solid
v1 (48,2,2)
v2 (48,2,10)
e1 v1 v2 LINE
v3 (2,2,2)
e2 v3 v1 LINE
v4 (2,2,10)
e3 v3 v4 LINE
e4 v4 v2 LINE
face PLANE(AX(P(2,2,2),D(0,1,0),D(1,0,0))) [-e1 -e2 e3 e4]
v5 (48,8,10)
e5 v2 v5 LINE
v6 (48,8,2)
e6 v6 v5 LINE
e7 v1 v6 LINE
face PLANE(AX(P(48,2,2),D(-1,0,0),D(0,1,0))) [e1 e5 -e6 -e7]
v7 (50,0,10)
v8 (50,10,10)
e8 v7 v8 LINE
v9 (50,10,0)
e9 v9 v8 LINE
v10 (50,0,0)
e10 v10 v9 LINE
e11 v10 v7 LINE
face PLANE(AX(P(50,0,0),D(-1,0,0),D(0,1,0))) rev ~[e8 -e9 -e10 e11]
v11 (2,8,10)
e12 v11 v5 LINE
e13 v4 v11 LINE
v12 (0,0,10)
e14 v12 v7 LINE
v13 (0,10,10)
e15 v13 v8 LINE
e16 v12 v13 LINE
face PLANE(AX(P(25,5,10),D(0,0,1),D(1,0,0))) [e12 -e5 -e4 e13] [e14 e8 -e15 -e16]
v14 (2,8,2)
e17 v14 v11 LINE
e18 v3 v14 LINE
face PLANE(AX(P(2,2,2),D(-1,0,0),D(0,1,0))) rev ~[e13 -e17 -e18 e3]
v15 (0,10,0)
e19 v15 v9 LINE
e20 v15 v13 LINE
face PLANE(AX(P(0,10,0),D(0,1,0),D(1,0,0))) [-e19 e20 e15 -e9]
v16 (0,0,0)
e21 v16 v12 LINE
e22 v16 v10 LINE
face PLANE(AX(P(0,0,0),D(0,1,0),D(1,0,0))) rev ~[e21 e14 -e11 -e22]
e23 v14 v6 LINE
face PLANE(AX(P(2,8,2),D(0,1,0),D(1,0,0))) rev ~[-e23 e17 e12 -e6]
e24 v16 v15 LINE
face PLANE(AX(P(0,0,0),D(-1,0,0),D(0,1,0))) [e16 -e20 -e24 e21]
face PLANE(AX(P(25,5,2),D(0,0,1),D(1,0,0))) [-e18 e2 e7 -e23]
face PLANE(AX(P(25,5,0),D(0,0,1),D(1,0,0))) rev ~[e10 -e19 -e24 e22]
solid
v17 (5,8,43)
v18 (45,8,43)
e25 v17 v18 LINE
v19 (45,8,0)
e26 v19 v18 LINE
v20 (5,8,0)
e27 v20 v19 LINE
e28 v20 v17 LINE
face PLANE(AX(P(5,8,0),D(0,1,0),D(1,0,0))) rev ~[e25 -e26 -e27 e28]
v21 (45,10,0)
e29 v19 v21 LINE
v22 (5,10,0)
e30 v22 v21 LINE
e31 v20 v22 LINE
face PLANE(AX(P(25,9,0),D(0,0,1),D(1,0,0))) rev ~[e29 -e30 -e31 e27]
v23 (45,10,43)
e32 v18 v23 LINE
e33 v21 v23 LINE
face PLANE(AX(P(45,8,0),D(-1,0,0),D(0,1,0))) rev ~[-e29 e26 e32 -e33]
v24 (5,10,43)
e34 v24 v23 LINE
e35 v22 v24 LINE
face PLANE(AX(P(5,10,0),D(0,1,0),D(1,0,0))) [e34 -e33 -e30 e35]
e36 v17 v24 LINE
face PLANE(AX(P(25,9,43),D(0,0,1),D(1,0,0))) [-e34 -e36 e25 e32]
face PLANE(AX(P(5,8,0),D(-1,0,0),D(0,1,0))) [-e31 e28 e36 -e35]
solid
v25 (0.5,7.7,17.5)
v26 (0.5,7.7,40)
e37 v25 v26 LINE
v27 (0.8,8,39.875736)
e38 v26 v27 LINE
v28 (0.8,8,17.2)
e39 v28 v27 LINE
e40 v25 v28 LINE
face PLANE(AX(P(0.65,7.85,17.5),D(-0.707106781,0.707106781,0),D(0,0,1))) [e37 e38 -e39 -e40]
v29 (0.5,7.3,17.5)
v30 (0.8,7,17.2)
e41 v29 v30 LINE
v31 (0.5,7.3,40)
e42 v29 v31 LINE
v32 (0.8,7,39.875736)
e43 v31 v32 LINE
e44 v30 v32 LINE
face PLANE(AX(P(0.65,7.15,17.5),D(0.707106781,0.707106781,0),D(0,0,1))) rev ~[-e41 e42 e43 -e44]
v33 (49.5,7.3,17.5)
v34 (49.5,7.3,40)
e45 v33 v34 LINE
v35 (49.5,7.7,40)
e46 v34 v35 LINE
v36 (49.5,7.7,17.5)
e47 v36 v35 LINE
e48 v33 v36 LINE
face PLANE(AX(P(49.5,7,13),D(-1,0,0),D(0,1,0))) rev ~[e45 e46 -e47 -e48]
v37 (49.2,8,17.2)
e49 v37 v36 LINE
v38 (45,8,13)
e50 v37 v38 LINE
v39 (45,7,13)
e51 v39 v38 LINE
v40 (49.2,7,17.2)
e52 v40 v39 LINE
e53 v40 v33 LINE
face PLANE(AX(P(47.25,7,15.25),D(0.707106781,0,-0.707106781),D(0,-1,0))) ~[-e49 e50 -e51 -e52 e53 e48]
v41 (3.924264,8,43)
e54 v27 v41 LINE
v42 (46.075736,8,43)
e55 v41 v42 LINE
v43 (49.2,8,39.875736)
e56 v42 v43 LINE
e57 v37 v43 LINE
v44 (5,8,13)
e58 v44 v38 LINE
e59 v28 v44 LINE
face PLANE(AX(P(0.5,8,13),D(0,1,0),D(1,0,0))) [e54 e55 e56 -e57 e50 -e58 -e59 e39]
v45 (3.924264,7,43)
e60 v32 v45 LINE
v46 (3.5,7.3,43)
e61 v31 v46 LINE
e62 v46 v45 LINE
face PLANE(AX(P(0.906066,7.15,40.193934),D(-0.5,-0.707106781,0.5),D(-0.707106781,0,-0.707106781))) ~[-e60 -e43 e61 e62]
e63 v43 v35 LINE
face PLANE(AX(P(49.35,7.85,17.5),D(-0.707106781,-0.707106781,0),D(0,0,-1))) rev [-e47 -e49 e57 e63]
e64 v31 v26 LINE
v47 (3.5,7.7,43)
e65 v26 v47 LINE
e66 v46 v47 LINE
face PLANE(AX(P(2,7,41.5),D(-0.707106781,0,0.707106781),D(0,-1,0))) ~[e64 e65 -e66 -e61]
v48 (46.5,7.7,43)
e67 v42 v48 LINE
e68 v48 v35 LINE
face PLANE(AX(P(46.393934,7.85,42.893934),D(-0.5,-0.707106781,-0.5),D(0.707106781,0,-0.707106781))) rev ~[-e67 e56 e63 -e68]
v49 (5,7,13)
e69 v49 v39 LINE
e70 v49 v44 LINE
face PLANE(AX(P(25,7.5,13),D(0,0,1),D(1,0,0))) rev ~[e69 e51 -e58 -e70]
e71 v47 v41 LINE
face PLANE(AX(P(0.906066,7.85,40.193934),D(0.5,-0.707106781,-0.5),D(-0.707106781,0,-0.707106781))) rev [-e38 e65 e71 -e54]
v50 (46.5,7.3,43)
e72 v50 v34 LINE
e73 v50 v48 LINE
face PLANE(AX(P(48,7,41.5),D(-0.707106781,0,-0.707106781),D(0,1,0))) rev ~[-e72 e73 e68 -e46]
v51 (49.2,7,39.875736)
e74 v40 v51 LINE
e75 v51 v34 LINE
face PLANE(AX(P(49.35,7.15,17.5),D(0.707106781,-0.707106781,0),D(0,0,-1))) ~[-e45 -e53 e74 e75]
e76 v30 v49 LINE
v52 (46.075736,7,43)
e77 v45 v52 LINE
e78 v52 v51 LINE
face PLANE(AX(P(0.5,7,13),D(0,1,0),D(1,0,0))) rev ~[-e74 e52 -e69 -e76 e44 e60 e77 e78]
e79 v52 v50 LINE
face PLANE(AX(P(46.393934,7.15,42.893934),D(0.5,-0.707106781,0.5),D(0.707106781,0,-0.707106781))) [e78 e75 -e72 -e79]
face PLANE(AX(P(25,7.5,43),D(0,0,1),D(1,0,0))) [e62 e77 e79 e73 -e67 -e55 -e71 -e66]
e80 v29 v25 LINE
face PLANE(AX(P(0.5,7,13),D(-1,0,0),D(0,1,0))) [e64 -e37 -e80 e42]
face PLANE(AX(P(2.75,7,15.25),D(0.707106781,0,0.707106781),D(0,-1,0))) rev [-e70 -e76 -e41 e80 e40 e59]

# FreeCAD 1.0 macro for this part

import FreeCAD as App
import Part
import Sketcher
from FreeCAD import Vector
Q = App.Units.Quantity


def edges_at(feature, points):
    """Names of the edges that pass closest to the given points."""
    edges = feature.Shape.Edges
    near = lambda p: min(range(len(edges)), key=lambda i: edges[i].distToShape(Part.Vertex(*p))[0])
    return sorted({f"Edge{near(p) + 1}" for p in points})

doc = App.newDocument("Part")
body = doc.addObject("PartDesign::Body", "Body")

# Sketch on XY plane
sketch1 = body.newObject("Sketcher::SketchObject", "Sketch")
sketch1.AttachmentSupport = (doc.getObject("XY_Plane"), [""])
sketch1.MapMode = "FlatFace"
sketch1.addGeometry([
    Part.LineSegment(Vector(5, 10, 0), Vector(5, 8, 0)),
    Part.LineSegment(Vector(5, 8, 0), Vector(45, 8, 0)),
    Part.LineSegment(Vector(45, 8, 0), Vector(45, 10, 0)),
    Part.LineSegment(Vector(45, 10, 0), Vector(5, 10, 0)),
], False)
sketch1.addConstraint([
    Sketcher.Constraint("Coincident", 0, 2, 1, 1),
    Sketcher.Constraint("Coincident", 1, 2, 2, 1),
    Sketcher.Constraint("Coincident", 2, 2, 3, 1),
    Sketcher.Constraint("Coincident", 3, 2, 0, 1),
    Sketcher.Constraint("Vertical", 0),
    Sketcher.Constraint("Horizontal", 1),
    Sketcher.Constraint("Vertical", 2),
    Sketcher.Constraint("Horizontal", 3),
    Sketcher.Constraint("DistanceX", 1, 1, 1, 2, Q("40 mm")),
    Sketcher.Constraint("DistanceY", 0, 2, 0, 1, Q("2 mm")),
    Sketcher.Constraint("DistanceX", -1, 1, 0, 2, Q("5 mm")),
    Sketcher.Constraint("DistanceY", -1, 1, 0, 2, Q("8 mm")),
])
pad1 = body.newObject("PartDesign::Pad", "Pad")
pad1.Profile = sketch1
pad1.Length = 43
body2 = doc.addObject("PartDesign::Body", "Body001")

# Sketch on XY plane
sketch2 = body2.newObject("Sketcher::SketchObject", "Sketch001")
sketch2.AttachmentSupport = (doc.getObject("XY_Plane001"), [""])
sketch2.MapMode = "FlatFace"
sketch2.AttachmentOffset = App.Placement(Vector(0, 0, 2), App.Rotation())
sketch2.addGeometry([
    Part.LineSegment(Vector(2, 8, 0), Vector(2, 2, 0)),
    Part.LineSegment(Vector(2, 2, 0), Vector(48, 2, 0)),
    Part.LineSegment(Vector(48, 2, 0), Vector(48, 8, 0)),
    Part.LineSegment(Vector(48, 8, 0), Vector(2, 8, 0)),
], False)
sketch2.addConstraint([
    Sketcher.Constraint("Coincident", 0, 2, 1, 1),
    Sketcher.Constraint("Coincident", 1, 2, 2, 1),
    Sketcher.Constraint("Coincident", 2, 2, 3, 1),
    Sketcher.Constraint("Coincident", 3, 2, 0, 1),
    Sketcher.Constraint("Vertical", 0),
    Sketcher.Constraint("Horizontal", 1),
    Sketcher.Constraint("Vertical", 2),
    Sketcher.Constraint("Horizontal", 3),
    Sketcher.Constraint("DistanceX", 1, 1, 1, 2, Q("46 mm")),
    Sketcher.Constraint("DistanceY", 0, 2, 0, 1, Q("6 mm")),
    Sketcher.Constraint("DistanceX", -1, 1, 0, 2, Q("2 mm")),
    Sketcher.Constraint("DistanceY", -1, 1, 0, 2, Q("2 mm")),
])
pad2 = body2.newObject("PartDesign::Pad", "Pad001")
pad2.Profile = sketch2
pad2.Length = 8
body3 = doc.addObject("PartDesign::Body", "Body002")

# Sketch on XY plane
sketch3 = body3.newObject("Sketcher::SketchObject", "Sketch002")
sketch3.AttachmentSupport = (doc.getObject("XY_Plane002"), [""])
sketch3.MapMode = "FlatFace"
sketch3.addGeometry([
    Part.LineSegment(Vector(0, 10, 0), Vector(0, 0, 0)),
    Part.LineSegment(Vector(0, 0, 0), Vector(50, 0, 0)),
    Part.LineSegment(Vector(50, 0, 0), Vector(50, 10, 0)),
    Part.LineSegment(Vector(50, 10, 0), Vector(0, 10, 0)),
], False)
sketch3.addConstraint([
    Sketcher.Constraint("Coincident", 0, 2, 1, 1),
    Sketcher.Constraint("Coincident", 1, 2, 2, 1),
    Sketcher.Constraint("Coincident", 2, 2, 3, 1),
    Sketcher.Constraint("Coincident", 3, 2, 0, 1),
    Sketcher.Constraint("Vertical", 0),
    Sketcher.Constraint("Horizontal", 1),
    Sketcher.Constraint("Vertical", 2),
    Sketcher.Constraint("Horizontal", 3),
    Sketcher.Constraint("Coincident", 0, 2, -1, 1),
    Sketcher.Constraint("DistanceX", 1, 1, 1, 2, Q("50 mm")),
    Sketcher.Constraint("DistanceY", 0, 2, 0, 1, Q("10 mm")),
])
pad3 = body3.newObject("PartDesign::Pad", "Pad002")
pad3.Profile = sketch3
pad3.Length = 10
doc.recompute()

boolean = body3.newObject("PartDesign::Boolean", "Boolean")
boolean.Type = "Cut"
boolean.addObjects([body2])
body4 = doc.addObject("PartDesign::Body", "Body003")

# Sketch on XY plane
sketch4 = body4.newObject("Sketcher::SketchObject", "Sketch003")
sketch4.AttachmentSupport = (doc.getObject("XY_Plane003"), [""])
sketch4.MapMode = "FlatFace"
sketch4.AttachmentOffset = App.Placement(Vector(0, 0, 12), App.Rotation())
sketch4.addGeometry([
    Part.LineSegment(Vector(0.5, 7, 0), Vector(0.5, 6, 0)),
    Part.LineSegment(Vector(0.5, 6, 0), Vector(49.5, 6, 0)),
    Part.LineSegment(Vector(49.5, 6, 0), Vector(49.5, 7, 0)),
    Part.LineSegment(Vector(49.5, 7, 0), Vector(0.5, 7, 0)),
], False)
sketch4.addConstraint([
    Sketcher.Constraint("Coincident", 0, 2, 1, 1),
    Sketcher.Constraint("Coincident", 1, 2, 2, 1),
    Sketcher.Constraint("Coincident", 2, 2, 3, 1),
    Sketcher.Constraint("Coincident", 3, 2, 0, 1),
    Sketcher.Constraint("Vertical", 0),
    Sketcher.Constraint("Horizontal", 1),
    Sketcher.Constraint("Vertical", 2),
    Sketcher.Constraint("Horizontal", 3),
    Sketcher.Constraint("DistanceX", 1, 1, 1, 2, Q("49 mm")),
    Sketcher.Constraint("DistanceY", 0, 2, 0, 1, Q("1 mm")),
    Sketcher.Constraint("DistanceY", -1, 1, 0, 2, Q("6 mm")),
    Sketcher.Constraint("DistanceX", -1, 1, 0, 2, Q("0.5 mm")),
])
pad4 = body4.newObject("PartDesign::Pad", "Pad003")
pad4.Profile = sketch4
pad4.Length = 30
doc.recompute()

chamfer = body4.newObject("PartDesign::Chamfer", "Chamfer")
chamfer.Base = (pad4, edges_at(pad4, [(0.5, 6.5, 12), (49.5, 6.5, 12)]))
chamfer.Size = 4.5
body5 = doc.addObject("PartDesign::Body", "Body004")
doc.recompute()

body4.Placement = App.Placement(Vector(0, 1, 1), App.Rotation(Vector(0, 0, 1), 0))
boolean2 = body5.newObject("PartDesign::Boolean", "Boolean001")
boolean2.Type = "Fuse"
boolean2.addObjects([body4])
doc.recompute()

chamfer2 = body5.newObject("PartDesign::Chamfer", "Chamfer001")
chamfer2.Base = (boolean2, edges_at(boolean2, [(0.5, 7.5, 43), (49.5, 7.5, 43)]))
chamfer2.Size = 3
doc.recompute()

chamfer3 = body5.newObject("PartDesign::Chamfer", "Chamfer002")
chamfer3.Base = (chamfer2, edges_at(chamfer2, [
    (0.5, 7, 28.75),
    (0.5, 8, 28.75),
    (49.5, 7, 28.75),
    (49.5, 8, 28.75),
]))
chamfer3.Size = 0.3
doc.recompute()

chamfer4 = body5.newObject("PartDesign::Chamfer", "Chamfer003")
chamfer4.Base = (chamfer3, edges_at(chamfer3, [
    (2.15, 7, 41.65),
    (2.15, 8, 41.65),
    (47.85, 7, 41.65),
    (47.85, 8, 41.65),
]))
chamfer4.Size = 0.3

doc.recompute()
